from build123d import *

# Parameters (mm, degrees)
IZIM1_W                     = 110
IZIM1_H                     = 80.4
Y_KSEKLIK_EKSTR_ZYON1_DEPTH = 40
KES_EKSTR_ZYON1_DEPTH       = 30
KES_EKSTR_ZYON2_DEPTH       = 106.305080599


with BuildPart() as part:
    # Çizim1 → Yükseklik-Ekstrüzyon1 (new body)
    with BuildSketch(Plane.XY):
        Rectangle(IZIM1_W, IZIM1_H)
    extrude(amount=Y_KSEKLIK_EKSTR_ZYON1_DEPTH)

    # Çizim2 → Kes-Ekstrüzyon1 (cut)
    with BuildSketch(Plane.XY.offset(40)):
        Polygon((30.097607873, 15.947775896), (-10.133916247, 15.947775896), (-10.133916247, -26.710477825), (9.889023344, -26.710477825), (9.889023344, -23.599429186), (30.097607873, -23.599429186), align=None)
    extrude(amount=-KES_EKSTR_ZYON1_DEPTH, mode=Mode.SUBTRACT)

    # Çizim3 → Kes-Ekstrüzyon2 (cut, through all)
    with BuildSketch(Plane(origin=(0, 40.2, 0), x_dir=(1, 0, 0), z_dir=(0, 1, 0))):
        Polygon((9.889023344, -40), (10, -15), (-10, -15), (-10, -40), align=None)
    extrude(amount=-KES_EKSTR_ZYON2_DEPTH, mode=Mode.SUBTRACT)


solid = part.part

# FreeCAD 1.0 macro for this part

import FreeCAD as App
import Part
import Sketcher
from FreeCAD import Vector
Q = App.Units.Quantity


def add_polygon(sketch, points):
    """Adds a closed chain of lines whose ends are joined by coincident constraints."""
    first, n = sketch.GeometryCount, len(points)
    for a, b in zip(points, points[1:] + points[:1]):
        sketch.addGeometry(Part.LineSegment(App.Vector(*a, 0), App.Vector(*b, 0)), False)
    for i in range(n):
        sketch.addConstraint(Sketcher.Constraint("Coincident", first + i, 2, first + (i + 1) % n, 1))

doc = App.newDocument("Part")
params = doc.addObject("Spreadsheet::Sheet", "Params")
for row, (alias, value) in enumerate([
    ("sketch1_width", "110 mm"),
    ("sketch1_height", "80.4 mm"),
    ("pad1_length", "40 mm"),
    ("pocket1_length", "30 mm"),
    ("sketch3_width", "20 mm"),
    ("sketch3_height", "25 mm"),
], start=1):
    params.set(f"A{row}", alias)
    params.set(f"B{row}", "=" + value)
    params.setAlias(f"B{row}", alias)

body = doc.addObject("PartDesign::Body", "Body")

# Sketch on XY plane
sketch1 = body.newObject("Sketcher::SketchObject", "Sketch")
sketch1.AttachmentSupport = (doc.getObject("XY_Plane"), [""])
sketch1.MapMode = "FlatFace"
add_polygon(sketch1, [(-55, 40), (-55, -40), (55, -40), (55, 40)])  # lines 0-3
sketch1.addConstraint([
    Sketcher.Constraint("Vertical", 0),
    Sketcher.Constraint("Horizontal", 1),
    Sketcher.Constraint("Vertical", 2),
    Sketcher.Constraint("Horizontal", 3),
    Sketcher.Constraint("Symmetric", 0, 2, 2, 2, -1, 1),
    Sketcher.Constraint("DistanceX", 1, 1, 1, 2, Q("110 mm")),
    Sketcher.Constraint("DistanceY", 0, 2, 0, 1, Q("80.4 mm")),
])
sketch1.setExpression("Constraints[9]", "Params.sketch1_width")
sketch1.setExpression("Constraints[10]", "Params.sketch1_height")
pad1 = body.newObject("PartDesign::Pad", "Pad")
pad1.Profile = sketch1
pad1.setExpression("Length", "Params.pad1_length")

# Sketch on XY plane
sketch2 = body.newObject("Sketcher::SketchObject", "Sketch001")
sketch2.AttachmentSupport = (doc.getObject("XY_Plane"), [""])
sketch2.MapMode = "FlatFace"
sketch2.AttachmentOffset = App.Placement(Vector(0, 0, 40), App.Rotation())
add_polygon(sketch2, [(30.1, 15.9), (-10.1, 15.9), (-10.1, -26.7), (9.9, -26.7), (9.9, -23.6), (30.1, -23.6)])  # lines 0-5
sketch2.addConstraint([
    Sketcher.Constraint("Horizontal", 0),
    Sketcher.Constraint("Vertical", 1),
    Sketcher.Constraint("Horizontal", 2),
    Sketcher.Constraint("Vertical", 3),
    Sketcher.Constraint("Horizontal", 4),
    Sketcher.Constraint("Vertical", 5),
    Sketcher.Constraint("DistanceX", 2, 1, 2, 2, Q("20.02294 mm")),
    Sketcher.Constraint("DistanceY", 3, 1, 3, 2, Q("3.111049 mm")),
    Sketcher.Constraint("DistanceX", 0, 2, 0, 1, Q("40.231524 mm")),
    Sketcher.Constraint("DistanceY", 1, 2, 1, 1, Q("42.658254 mm")),
    Sketcher.Constraint("DistanceY", 3, 2, -1, 1, Q("23.599429 mm")),
    Sketcher.Constraint("DistanceX", 0, 2, -1, 1, Q("10.133916 mm")),
])
pocket1 = body.newObject("PartDesign::Pocket", "Pocket")
pocket1.Profile = sketch2
pocket1.setExpression("Length", "Params.pocket1_length")

# Sketch on XZ plane
sketch3 = body.newObject("Sketcher::SketchObject", "Sketch002")
sketch3.AttachmentSupport = (doc.getObject("XZ_Plane"), [""])
sketch3.MapMode = "FlatFace"
sketch3.AttachmentOffset = App.Placement(Vector(0, 0, -40.2), App.Rotation())
add_polygon(sketch3, [(10, 40), (10, 15), (-10, 15), (-10, 40)])  # lines 0-3
sketch3.addConstraint([
    Sketcher.Constraint("Horizontal", 1),
    Sketcher.Constraint("Vertical", 2),
    Sketcher.Constraint("Horizontal", 3),
    Sketcher.Constraint("DistanceX", 1, 2, 1, 1, Q("20 mm")),
    Sketcher.Constraint("DistanceY", 2, 1, 2, 2, Q("25 mm")),
    Sketcher.Constraint("DistanceX", -1, 1, 0, 2, Q("10 mm")),
    Sketcher.Constraint("DistanceY", -1, 1, 0, 2, Q("15 mm")),
    Sketcher.Constraint("DistanceX", 3, 1, 3, 2, Q("19.889023 mm")),
])
sketch3.setExpression("Constraints[7]", "Params.sketch3_width")
sketch3.setExpression("Constraints[8]", "Params.sketch3_height")
pocket2 = body.newObject("PartDesign::Pocket", "Pocket001")
pocket2.Profile = sketch3
pocket2.Type = "ThroughAll"
pocket2.Reversed = True

doc.recompute()
